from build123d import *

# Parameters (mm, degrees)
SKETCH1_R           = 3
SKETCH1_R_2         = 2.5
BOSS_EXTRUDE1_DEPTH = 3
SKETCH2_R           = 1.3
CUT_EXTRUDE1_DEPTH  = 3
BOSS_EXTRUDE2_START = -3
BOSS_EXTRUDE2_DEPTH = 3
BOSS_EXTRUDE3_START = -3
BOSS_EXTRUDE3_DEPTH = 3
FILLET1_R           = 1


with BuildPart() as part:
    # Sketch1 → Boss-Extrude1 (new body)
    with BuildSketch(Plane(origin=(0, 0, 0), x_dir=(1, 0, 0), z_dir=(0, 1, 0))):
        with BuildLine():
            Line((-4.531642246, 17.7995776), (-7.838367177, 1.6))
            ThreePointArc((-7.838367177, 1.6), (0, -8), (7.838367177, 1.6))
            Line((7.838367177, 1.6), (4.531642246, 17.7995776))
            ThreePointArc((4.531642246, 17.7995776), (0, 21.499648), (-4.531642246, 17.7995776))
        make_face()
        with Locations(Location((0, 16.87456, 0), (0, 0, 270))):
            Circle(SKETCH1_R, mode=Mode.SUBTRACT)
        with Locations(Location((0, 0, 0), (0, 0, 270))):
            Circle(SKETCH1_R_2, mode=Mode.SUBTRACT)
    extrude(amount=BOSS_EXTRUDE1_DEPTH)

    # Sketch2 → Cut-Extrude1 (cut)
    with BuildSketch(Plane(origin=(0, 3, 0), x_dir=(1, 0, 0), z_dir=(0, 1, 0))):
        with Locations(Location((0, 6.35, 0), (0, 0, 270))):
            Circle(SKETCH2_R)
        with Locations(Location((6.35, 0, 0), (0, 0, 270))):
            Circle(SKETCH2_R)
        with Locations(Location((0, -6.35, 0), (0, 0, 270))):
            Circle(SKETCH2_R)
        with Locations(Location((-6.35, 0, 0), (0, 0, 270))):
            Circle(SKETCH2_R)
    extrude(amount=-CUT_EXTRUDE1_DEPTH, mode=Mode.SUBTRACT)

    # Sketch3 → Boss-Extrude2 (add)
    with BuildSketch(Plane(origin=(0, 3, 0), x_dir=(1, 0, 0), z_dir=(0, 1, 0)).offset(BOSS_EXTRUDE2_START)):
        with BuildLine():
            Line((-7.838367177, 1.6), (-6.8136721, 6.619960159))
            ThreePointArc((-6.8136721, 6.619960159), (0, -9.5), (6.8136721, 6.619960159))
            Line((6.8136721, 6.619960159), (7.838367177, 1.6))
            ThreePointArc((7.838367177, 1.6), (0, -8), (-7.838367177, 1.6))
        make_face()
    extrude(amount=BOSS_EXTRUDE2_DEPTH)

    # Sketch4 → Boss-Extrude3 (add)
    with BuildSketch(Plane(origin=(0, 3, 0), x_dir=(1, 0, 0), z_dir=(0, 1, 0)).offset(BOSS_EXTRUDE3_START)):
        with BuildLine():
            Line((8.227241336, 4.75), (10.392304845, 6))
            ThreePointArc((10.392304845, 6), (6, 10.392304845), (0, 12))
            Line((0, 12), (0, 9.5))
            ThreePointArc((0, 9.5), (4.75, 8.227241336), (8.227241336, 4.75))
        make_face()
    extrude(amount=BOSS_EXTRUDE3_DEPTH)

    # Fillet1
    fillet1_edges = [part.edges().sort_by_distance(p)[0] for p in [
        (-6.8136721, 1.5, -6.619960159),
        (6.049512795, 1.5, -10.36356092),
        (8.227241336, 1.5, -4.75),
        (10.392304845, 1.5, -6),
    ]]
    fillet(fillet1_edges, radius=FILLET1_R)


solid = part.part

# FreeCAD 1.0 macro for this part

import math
import FreeCAD as App
import Part
import Sketcher
Q = App.Units.Quantity


def edges_at(feature, points):
    """Names of the edges that pass closest to the given points."""
    edges = feature.Shape.Edges
    near = lambda p: min(range(len(edges)), key=lambda i: edges[i].distToShape(Part.Vertex(*p))[0])
    return sorted({f"Edge{near(p) + 1}" for p in points})

doc = App.newDocument("Part")
body = doc.addObject("PartDesign::Body", "Body")

# Sketch on XZ plane
sketch1 = body.newObject("Sketcher::SketchObject", "Sketch")
sketch1.AttachmentSupport = (doc.getObject("XZ_Plane"), [""])
sketch1.MapMode = "FlatFace"
sketch1.addGeometry([
    Part.LineSegment(App.Vector(-4.5, -17.8, 0), App.Vector(-7.8, -1.6, 0)),  # 0
    Part.ArcOfCircle(Part.Circle(App.Vector(0, 0, 0), App.Vector(0, 0, 1), 8), math.radians(-12), math.radians(192)),  # 1
    Part.LineSegment(App.Vector(7.8, -1.6, 0), App.Vector(4.5, -17.8, 0)),  # 2
    Part.ArcOfCircle(Part.Circle(App.Vector(0, -16.9, 0), App.Vector(0, 0, 1), 4.6), math.radians(-168), math.radians(-12)),  # 3
    Part.Circle(App.Vector(0, 0, 0), App.Vector(0, 0, 1), 2.5),  # 4
    Part.Circle(App.Vector(0, -16.9, 0), App.Vector(0, 0, 1), 3),  # 5
], False)
sketch1.addConstraint([
    Sketcher.Constraint("Tangent", 0, 2, 1, 2),
    Sketcher.Constraint("Tangent", 1, 1, 2, 1),
    Sketcher.Constraint("Tangent", 2, 2, 3, 2),
    Sketcher.Constraint("Tangent", 3, 1, 0, 1),
    Sketcher.Constraint("Coincident", 1, 3, -1, 1),
    Sketcher.Constraint("Coincident", 4, 3, -1, 1),
    Sketcher.Constraint("Coincident", 5, 3, 3, 3),
    Sketcher.Constraint("PointOnObject", 3, 3, -2),
    Sketcher.Constraint("Diameter", 4, 5.0),
    Sketcher.Constraint("Diameter", 5, 6.0),
    Sketcher.Constraint("Radius", 1, 8.0),
    Sketcher.Constraint("DistanceY", 0, 2, -1, 1, 1.6),
    Sketcher.Constraint("Radius", 3, 4.625088),
])
pad1 = body.newObject("PartDesign::Pad", "Pad")
pad1.Profile = sketch1
pad1.Length = 3
pad1.Reversed = True

# Sketch on XZ plane
sketch2 = body.newObject("Sketcher::SketchObject", "Sketch001")
sketch2.AttachmentSupport = (doc.getObject("XZ_Plane"), [""])
sketch2.MapMode = "FlatFace"
sketch2.AttachmentOffset = App.Placement(App.Vector(0, 0, -3), App.Rotation())
sketch2.addGeometry([
    Part.Circle(App.Vector(0, -6.3, 0), App.Vector(0, 0, 1), 1.3),
    Part.Circle(App.Vector(6.3, 0, 0), App.Vector(0, 0, 1), 1.3),
    Part.Circle(App.Vector(0, 6.3, 0), App.Vector(0, 0, 1), 1.3),
    Part.Circle(App.Vector(-6.3, 0, 0), App.Vector(0, 0, 1), 1.3),
], False)
sketch2.addConstraint([
    Sketcher.Constraint("Equal", 0, 1),
    Sketcher.Constraint("Equal", 1, 2),
    Sketcher.Constraint("Equal", 2, 3),
    Sketcher.Constraint("Symmetric", 0, 3, 2, 3, -1, 1),
    Sketcher.Constraint("Symmetric", 1, 3, 3, 3, -1, 1),
    Sketcher.Constraint("PointOnObject", 0, 3, -2),
    Sketcher.Constraint("PointOnObject", 1, 3, -1),
    Sketcher.Constraint("Diameter", 0, 2.6),
    Sketcher.Constraint("DistanceY", 0, 3, 2, 3, 12.7),
    Sketcher.Constraint("DistanceX", 3, 3, 1, 3, 12.7),
])
pocket1 = body.newObject("PartDesign::Pocket", "Pocket")
pocket1.Profile = sketch2
pocket1.Length = 3
pocket1.Reversed = True

# Sketch on XZ plane
sketch3 = body.newObject("Sketcher::SketchObject", "Sketch002")
sketch3.AttachmentSupport = (doc.getObject("XZ_Plane"), [""])
sketch3.MapMode = "FlatFace"
sketch3.addGeometry([
    Part.LineSegment(App.Vector(-8, -2, 0), App.Vector(-7, -7, 0)),
    Part.ArcOfCircle(Part.Circle(App.Vector(0, 0, 0), App.Vector(0, 0, 1), 10), math.radians(-44), math.radians(224)),
    Part.LineSegment(App.Vector(7, -7, 0), App.Vector(8, -2, 0)),
    Part.ArcOfCircle(Part.Circle(App.Vector(0, 0, 0), App.Vector(0, 0, 1), 8), math.radians(-12), math.radians(192)),
], False)
sketch3.addConstraint([
    Sketcher.Constraint("Coincident", 0, 2, 1, 2),
    Sketcher.Constraint("Coincident", 1, 1, 2, 1),
    Sketcher.Constraint("Tangent", 2, 2, 3, 1),
    Sketcher.Constraint("Tangent", 3, 2, 0, 1),
    Sketcher.Constraint("Coincident", 1, 3, -1, 1),
    Sketcher.Constraint("Coincident", 3, 3, -1, 1),
    Sketcher.Constraint("Horizontal", 0, 2, 1, 1),
    Sketcher.Constraint("Radius", 3, 8.0),
    Sketcher.Constraint("Radius", 1, 9.5),
    Sketcher.Constraint("DistanceY", 2, 2, -1, 1, 1.6),
])
pad2 = body.newObject("PartDesign::Pad", "Pad001")
pad2.Profile = sketch3
pad2.Length = 3
pad2.Reversed = True

# Sketch on XZ plane
sketch4 = body.newObject("Sketcher::SketchObject", "Sketch003")
sketch4.AttachmentSupport = (doc.getObject("XZ_Plane"), [""])
sketch4.MapMode = "FlatFace"
sketch4.addGeometry([
    Part.LineSegment(App.Vector(8.2, -4.8, 0), App.Vector(10.4, -6, 0)),
    Part.ArcOfCircle(Part.Circle(App.Vector(0, 0, 0), App.Vector(0, 0, 1), 12), math.radians(-90), math.radians(-30)),
    Part.LineSegment(App.Vector(0, -12, 0), App.Vector(0, -9.5, 0)),
    Part.ArcOfCircle(Part.Circle(App.Vector(0, 0, 0), App.Vector(0, 0, 1), 9.5), math.radians(-90), math.radians(-30)),
], False)
sketch4.addConstraint([
    Sketcher.Constraint("Coincident", 0, 2, 1, 2),
    Sketcher.Constraint("Coincident", 1, 1, 2, 1),
    Sketcher.Constraint("Coincident", 2, 2, 3, 1),
    Sketcher.Constraint("Coincident", 3, 2, 0, 1),
    Sketcher.Constraint("Vertical", 2),
    Sketcher.Constraint("Coincident", 1, 3, -1, 1),
    Sketcher.Constraint("Coincident", 3, 3, -1, 1),
    Sketcher.Constraint("PointOnObject", 1, 1, -2),
    Sketcher.Constraint("Radius", 1, 12.0),
    Sketcher.Constraint("Radius", 3, 9.5),
    Sketcher.Constraint("Angle", 0, Q("-30 deg")),
    Sketcher.Constraint("DistanceY", 0, 2, -1, 1, 6.0),
])
pad3 = body.newObject("PartDesign::Pad", "Pad002")
pad3.Profile = sketch4
pad3.Length = 3
pad3.Reversed = True
doc.recompute()

fillet = body.newObject("PartDesign::Fillet", "Fillet")
fillet.Base = (pad3, edges_at(pad3, [
    (-6.814, 1.5, -6.62),
    (6.05, 1.5, -10.364),
    (8.227, 1.5, -4.75),
    (10.392, 1.5, -6),
]))
fillet.Radius = 1

doc.recompute()
